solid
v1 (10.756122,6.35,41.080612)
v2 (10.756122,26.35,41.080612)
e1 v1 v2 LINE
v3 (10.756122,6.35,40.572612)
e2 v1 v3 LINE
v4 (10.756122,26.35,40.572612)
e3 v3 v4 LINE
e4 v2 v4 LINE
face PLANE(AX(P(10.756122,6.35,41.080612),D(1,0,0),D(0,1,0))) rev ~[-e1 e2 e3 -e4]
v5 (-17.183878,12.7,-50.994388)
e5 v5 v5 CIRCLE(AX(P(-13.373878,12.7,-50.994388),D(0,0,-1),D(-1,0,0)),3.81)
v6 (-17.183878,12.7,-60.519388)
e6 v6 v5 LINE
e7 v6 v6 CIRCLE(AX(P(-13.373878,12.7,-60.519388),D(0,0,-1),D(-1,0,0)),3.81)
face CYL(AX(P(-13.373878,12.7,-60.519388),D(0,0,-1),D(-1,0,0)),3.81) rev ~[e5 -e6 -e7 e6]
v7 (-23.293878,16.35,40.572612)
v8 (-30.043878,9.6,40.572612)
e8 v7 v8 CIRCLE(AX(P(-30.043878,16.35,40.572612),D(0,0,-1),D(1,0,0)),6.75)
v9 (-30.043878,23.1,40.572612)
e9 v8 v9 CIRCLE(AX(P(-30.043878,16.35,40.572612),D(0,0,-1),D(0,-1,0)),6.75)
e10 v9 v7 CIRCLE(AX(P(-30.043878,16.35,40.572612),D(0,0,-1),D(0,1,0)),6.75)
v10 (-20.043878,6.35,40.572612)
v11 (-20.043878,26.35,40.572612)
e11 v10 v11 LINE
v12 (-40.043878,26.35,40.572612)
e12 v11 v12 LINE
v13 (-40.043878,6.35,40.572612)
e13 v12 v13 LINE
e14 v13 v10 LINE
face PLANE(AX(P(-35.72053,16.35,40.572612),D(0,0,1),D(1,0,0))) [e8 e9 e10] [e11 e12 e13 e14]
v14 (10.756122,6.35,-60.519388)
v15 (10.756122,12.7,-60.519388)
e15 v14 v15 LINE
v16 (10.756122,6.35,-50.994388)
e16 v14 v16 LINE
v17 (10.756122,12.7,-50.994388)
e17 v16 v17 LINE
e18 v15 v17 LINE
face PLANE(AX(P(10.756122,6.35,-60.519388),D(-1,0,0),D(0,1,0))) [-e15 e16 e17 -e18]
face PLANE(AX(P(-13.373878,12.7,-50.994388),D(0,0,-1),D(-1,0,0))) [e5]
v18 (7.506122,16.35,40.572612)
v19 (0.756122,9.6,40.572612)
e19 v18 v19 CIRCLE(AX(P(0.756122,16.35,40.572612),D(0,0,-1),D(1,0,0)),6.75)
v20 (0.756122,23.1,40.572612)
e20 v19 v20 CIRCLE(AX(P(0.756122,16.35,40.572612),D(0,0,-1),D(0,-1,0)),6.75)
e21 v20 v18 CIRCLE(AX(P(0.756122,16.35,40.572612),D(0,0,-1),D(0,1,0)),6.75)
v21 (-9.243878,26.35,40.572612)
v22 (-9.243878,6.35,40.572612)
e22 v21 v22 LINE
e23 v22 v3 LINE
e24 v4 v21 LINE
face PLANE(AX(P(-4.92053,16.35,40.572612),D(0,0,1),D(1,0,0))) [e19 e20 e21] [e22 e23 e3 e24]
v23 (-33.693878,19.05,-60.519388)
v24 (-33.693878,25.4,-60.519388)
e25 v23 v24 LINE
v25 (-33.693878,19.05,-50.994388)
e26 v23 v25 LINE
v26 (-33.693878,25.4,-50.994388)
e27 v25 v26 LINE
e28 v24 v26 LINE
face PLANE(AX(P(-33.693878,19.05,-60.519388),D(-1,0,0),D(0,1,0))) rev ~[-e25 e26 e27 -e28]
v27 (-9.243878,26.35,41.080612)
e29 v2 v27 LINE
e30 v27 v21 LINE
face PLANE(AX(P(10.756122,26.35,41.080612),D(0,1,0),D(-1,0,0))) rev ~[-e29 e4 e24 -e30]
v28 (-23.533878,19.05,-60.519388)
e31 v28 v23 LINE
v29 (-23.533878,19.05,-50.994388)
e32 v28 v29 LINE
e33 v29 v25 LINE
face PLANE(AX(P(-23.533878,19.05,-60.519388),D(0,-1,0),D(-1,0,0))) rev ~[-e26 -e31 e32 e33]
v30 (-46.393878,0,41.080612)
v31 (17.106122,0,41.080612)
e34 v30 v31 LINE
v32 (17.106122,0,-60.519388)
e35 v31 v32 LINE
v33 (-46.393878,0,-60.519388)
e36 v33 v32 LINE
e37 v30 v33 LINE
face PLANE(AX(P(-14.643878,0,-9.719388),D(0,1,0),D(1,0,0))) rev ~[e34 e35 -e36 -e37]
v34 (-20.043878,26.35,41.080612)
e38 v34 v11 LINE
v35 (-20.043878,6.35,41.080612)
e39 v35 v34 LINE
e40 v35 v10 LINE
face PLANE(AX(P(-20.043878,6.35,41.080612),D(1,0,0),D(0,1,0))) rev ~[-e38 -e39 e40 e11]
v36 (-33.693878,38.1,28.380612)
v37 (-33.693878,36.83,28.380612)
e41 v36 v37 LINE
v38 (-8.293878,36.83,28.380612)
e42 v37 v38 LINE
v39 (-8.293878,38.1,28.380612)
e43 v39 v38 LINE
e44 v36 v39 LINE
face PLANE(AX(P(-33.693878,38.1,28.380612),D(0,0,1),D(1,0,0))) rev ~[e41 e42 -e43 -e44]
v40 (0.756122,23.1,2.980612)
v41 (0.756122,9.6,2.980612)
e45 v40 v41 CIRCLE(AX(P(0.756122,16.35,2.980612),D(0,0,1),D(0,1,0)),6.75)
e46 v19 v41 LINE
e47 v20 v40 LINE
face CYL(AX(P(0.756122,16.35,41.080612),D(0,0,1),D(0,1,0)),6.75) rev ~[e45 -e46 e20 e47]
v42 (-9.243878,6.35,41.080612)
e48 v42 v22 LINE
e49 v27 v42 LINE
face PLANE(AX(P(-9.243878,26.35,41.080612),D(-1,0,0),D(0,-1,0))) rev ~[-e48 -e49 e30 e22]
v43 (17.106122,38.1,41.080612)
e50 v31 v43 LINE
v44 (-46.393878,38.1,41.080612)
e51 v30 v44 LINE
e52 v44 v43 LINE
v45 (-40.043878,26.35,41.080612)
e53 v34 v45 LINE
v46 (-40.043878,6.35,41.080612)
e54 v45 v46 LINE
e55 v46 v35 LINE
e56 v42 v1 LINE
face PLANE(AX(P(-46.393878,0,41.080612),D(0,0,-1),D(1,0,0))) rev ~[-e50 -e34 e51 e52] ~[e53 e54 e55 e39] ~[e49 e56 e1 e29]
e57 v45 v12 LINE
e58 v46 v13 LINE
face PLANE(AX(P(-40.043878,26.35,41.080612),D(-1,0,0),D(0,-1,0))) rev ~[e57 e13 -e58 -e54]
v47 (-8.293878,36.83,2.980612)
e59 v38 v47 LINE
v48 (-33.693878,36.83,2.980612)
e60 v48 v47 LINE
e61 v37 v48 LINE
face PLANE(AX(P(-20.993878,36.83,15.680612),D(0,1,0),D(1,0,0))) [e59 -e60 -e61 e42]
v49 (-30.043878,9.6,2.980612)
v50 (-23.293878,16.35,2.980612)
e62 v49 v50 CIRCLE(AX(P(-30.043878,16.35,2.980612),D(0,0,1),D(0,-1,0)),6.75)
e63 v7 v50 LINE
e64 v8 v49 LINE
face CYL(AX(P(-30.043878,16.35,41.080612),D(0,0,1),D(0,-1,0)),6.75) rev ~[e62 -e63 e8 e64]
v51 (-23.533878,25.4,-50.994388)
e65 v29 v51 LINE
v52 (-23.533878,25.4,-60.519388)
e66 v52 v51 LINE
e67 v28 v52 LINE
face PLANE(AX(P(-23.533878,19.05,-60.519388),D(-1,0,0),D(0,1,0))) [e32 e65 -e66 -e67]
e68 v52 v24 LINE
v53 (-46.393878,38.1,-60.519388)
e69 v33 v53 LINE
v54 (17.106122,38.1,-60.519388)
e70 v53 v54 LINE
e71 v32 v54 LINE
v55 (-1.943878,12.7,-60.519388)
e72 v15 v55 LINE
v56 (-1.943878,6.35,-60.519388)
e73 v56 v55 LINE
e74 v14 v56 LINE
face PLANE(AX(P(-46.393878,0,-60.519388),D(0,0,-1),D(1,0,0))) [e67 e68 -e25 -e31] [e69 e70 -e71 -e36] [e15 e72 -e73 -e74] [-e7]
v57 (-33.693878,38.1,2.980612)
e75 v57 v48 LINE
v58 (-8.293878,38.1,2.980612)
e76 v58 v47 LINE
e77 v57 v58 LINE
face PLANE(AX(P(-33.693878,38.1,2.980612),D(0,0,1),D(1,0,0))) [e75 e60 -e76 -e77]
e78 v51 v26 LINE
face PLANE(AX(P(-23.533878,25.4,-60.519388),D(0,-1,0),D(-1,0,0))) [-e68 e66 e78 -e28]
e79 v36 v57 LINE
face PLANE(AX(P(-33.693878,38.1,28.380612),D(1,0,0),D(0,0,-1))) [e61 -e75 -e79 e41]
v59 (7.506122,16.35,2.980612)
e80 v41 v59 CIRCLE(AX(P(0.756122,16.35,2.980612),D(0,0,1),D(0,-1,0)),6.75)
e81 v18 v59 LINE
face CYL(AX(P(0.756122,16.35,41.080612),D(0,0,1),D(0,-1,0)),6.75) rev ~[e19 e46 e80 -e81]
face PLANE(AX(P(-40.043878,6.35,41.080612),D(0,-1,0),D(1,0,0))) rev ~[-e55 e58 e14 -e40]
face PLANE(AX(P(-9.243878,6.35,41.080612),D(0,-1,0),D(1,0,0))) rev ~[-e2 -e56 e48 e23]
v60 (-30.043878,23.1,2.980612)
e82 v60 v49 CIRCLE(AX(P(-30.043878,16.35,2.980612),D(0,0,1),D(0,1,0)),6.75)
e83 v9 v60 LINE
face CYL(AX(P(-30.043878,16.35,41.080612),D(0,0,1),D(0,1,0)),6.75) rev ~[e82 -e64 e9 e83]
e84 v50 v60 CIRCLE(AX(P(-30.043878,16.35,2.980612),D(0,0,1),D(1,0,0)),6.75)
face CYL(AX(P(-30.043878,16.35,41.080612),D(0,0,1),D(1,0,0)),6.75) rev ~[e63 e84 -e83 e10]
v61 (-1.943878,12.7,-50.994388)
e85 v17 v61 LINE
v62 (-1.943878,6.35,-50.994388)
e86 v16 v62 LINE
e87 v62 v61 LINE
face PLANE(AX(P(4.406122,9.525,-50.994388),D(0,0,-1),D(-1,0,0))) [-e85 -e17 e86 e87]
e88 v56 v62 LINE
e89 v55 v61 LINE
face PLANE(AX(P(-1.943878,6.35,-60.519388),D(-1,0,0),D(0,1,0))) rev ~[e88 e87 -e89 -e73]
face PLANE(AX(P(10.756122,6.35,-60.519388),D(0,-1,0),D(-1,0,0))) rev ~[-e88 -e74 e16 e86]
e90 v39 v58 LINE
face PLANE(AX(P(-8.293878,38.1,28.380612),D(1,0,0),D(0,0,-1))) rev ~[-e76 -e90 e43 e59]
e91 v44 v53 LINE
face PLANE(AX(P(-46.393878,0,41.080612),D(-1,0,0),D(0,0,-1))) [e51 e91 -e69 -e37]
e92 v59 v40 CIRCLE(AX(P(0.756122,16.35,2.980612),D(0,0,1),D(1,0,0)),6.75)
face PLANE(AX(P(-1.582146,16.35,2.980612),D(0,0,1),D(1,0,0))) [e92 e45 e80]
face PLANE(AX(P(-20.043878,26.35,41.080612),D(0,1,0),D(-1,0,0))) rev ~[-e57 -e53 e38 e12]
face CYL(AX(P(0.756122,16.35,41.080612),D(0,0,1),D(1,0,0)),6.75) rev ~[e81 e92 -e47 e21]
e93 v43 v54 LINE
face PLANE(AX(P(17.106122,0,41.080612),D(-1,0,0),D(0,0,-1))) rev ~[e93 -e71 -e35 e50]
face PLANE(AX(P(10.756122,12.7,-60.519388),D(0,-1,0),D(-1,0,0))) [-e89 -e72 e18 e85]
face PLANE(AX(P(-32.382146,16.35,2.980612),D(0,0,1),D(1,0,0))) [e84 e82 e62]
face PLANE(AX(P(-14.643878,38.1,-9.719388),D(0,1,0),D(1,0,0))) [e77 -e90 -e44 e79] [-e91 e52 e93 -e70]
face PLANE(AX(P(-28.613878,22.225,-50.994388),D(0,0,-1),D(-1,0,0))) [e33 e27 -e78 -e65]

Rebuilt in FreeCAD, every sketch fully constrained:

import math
import FreeCAD as App
import Part
import Sketcher
Q = App.Units.Quantity

doc = App.newDocument("Part")
body = doc.addObject("PartDesign::Body", "Body")

# Sketch on XZ plane
sketch1 = doc.addObject("Sketcher::SketchObject", "Sketch")
body.addObject(sketch1)
sketch1.AttachmentSupport = (doc.XZ_Plane, [""])
sketch1.MapMode = "FlatFace"
sketch1.addGeometry([
    Part.LineSegment(App.Vector(-46, -61, 0), App.Vector(-46, 41, 0)),
    Part.LineSegment(App.Vector(-46, 41, 0), App.Vector(17, 41, 0)),
    Part.LineSegment(App.Vector(17, 41, 0), App.Vector(17, -61, 0)),
    Part.LineSegment(App.Vector(17, -61, 0), App.Vector(-46, -61, 0)),
], False)
sketch1.addConstraint([
    Sketcher.Constraint("Coincident", 0, 2, 1, 1),
    Sketcher.Constraint("Coincident", 1, 2, 2, 1),
    Sketcher.Constraint("Coincident", 2, 2, 3, 1),
    Sketcher.Constraint("Coincident", 3, 2, 0, 1),
    Sketcher.Constraint("Vertical", 0),
    Sketcher.Constraint("Horizontal", 1),
    Sketcher.Constraint("Vertical", 2),
    Sketcher.Constraint("Horizontal", 3),
    Sketcher.Constraint("DistanceY", 0, 1, 0, 2, Q("4 in")),
    Sketcher.Constraint("DistanceX", 1, 1, 1, 2, Q("2.5 in")),
    Sketcher.Constraint("DistanceX", 0, 2, -1, 1, Q("46.393878 mm")),
    Sketcher.Constraint("DistanceY", -1, 1, 0, 2, Q("41.080612 mm")),
])
pad1 = doc.addObject("PartDesign::Pad", "Pad")
body.addObject(pad1)
pad1.Profile = sketch1
pad1.Length = Q("1.5 in")
pad1.Reversed = True

# Sketch on XY plane
sketch2 = doc.addObject("Sketcher::SketchObject", "Sketch001")
body.addObject(sketch2)
sketch2.AttachmentSupport = (doc.XY_Plane, [""])
sketch2.MapMode = "FlatFace"
sketch2.AttachmentOffset = App.Placement(App.Vector(0, 0, 41.080612), App.Rotation())
sketch2.addGeometry([
    Part.ArcOfCircle(Part.Circle(App.Vector(-30, 16, 0), App.Vector(0, 0, 1), 7), math.radians(90), math.radians(270)),  # 0
    Part.ArcOfCircle(Part.Circle(App.Vector(-30, 16, 0), App.Vector(0, 0, 1), 7), math.radians(-90), math.radians(0)),  # 1
    Part.ArcOfCircle(Part.Circle(App.Vector(-30, 16, 0), App.Vector(0, 0, 1), 7), math.radians(0), math.radians(90)),  # 2
    Part.ArcOfCircle(Part.Circle(App.Vector(1, 16, 0), App.Vector(0, 0, 1), 7), math.radians(90), math.radians(270)),  # 3
    Part.ArcOfCircle(Part.Circle(App.Vector(1, 16, 0), App.Vector(0, 0, 1), 7), math.radians(-90), math.radians(0)),  # 4
    Part.ArcOfCircle(Part.Circle(App.Vector(1, 16, 0), App.Vector(0, 0, 1), 7), math.radians(0), math.radians(90)),  # 5
], False)
sketch2.addConstraint([
    Sketcher.Constraint("Tangent", 0, 2, 1, 1),
    Sketcher.Constraint("Tangent", 1, 2, 2, 1),
    Sketcher.Constraint("Tangent", 2, 2, 0, 1),
    Sketcher.Constraint("Tangent", 3, 2, 4, 1),
    Sketcher.Constraint("Tangent", 4, 2, 5, 1),
    Sketcher.Constraint("Tangent", 5, 2, 3, 1),
    Sketcher.Constraint("Equal", 2, 3),
    Sketcher.Constraint("Horizontal", 2, 3, 3, 3),
    Sketcher.Constraint("Horizontal", 5, 3, 1, 2),
    Sketcher.Constraint("Horizontal", 1, 2, 4, 2),
    Sketcher.Constraint("Vertical", 2, 3, 0, 2),
    Sketcher.Constraint("Vertical", 0, 2, 2, 2),
    Sketcher.Constraint("Vertical", 5, 3, 3, 2),
    Sketcher.Constraint("Vertical", 3, 2, 5, 2),
    Sketcher.Constraint("Radius", 0, Q("6.75 mm")),
    Sketcher.Constraint("DistanceY", -1, 1, 0, 3, Q("16.35 mm")),
    Sketcher.Constraint("DistanceX", 0, 3, 3, 3, Q("30.8 mm")),
    Sketcher.Constraint("DistanceX", 0, 3, -1, 1, Q("30.043878 mm")),
])
pocket1 = doc.addObject("PartDesign::Pocket", "Pocket")
body.addObject(pocket1)
pocket1.Profile = sketch2
pocket1.Length = Q("1.5 in")

# Sketch on XY plane
sketch3 = doc.addObject("Sketcher::SketchObject", "Sketch002")
body.addObject(sketch3)
sketch3.AttachmentSupport = (doc.XY_Plane, [""])
sketch3.MapMode = "FlatFace"
sketch3.AttachmentOffset = App.Placement(App.Vector(0, 0, 41.080612), App.Rotation())
sketch3.addGeometry([
    Part.LineSegment(App.Vector(-40, 26, 0), App.Vector(-40, 6, 0)),  # 0
    Part.LineSegment(App.Vector(-40, 6, 0), App.Vector(-20, 6, 0)),  # 1
    Part.LineSegment(App.Vector(-20, 6, 0), App.Vector(-20, 26, 0)),  # 2
    Part.LineSegment(App.Vector(-20, 26, 0), App.Vector(-40, 26, 0)),  # 3
    Part.ArcOfCircle(Part.Circle(App.Vector(-30, 16, 0), App.Vector(0, 0, 1), 7), math.radians(90), math.radians(270)),  # 4
    Part.ArcOfCircle(Part.Circle(App.Vector(-30, 16, 0), App.Vector(0, 0, 1), 7), math.radians(0), math.radians(90)),  # 5
    Part.ArcOfCircle(Part.Circle(App.Vector(-30, 16, 0), App.Vector(0, 0, 1), 7), math.radians(-90), math.radians(0)),  # 6
    Part.LineSegment(App.Vector(-9, 26, 0), App.Vector(-9, 6, 0)),  # 7
    Part.LineSegment(App.Vector(-9, 6, 0), App.Vector(11, 6, 0)),  # 8
    Part.LineSegment(App.Vector(11, 6, 0), App.Vector(11, 26, 0)),  # 9
    Part.LineSegment(App.Vector(11, 26, 0), App.Vector(-9, 26, 0)),  # 10
    Part.ArcOfCircle(Part.Circle(App.Vector(1, 16, 0), App.Vector(0, 0, 1), 7), math.radians(90), math.radians(270)),  # 11
    Part.ArcOfCircle(Part.Circle(App.Vector(1, 16, 0), App.Vector(0, 0, 1), 7), math.radians(0), math.radians(90)),  # 12
    Part.ArcOfCircle(Part.Circle(App.Vector(1, 16, 0), App.Vector(0, 0, 1), 7), math.radians(-90), math.radians(0)),  # 13
], False)
sketch3.addConstraint([
    Sketcher.Constraint("Coincident", 0, 2, 1, 1),
    Sketcher.Constraint("Coincident", 1, 2, 2, 1),
    Sketcher.Constraint("Coincident", 2, 2, 3, 1),
    Sketcher.Constraint("Coincident", 3, 2, 0, 1),
    Sketcher.Constraint("Tangent", 4, 1, 5, 2),
    Sketcher.Constraint("Tangent", 5, 1, 6, 2),
    Sketcher.Constraint("Tangent", 6, 1, 4, 2),
    Sketcher.Constraint("Coincident", 7, 2, 8, 1),
    Sketcher.Constraint("Coincident", 8, 2, 9, 1),
    Sketcher.Constraint("Coincident", 9, 2, 10, 1),
    Sketcher.Constraint("Coincident", 10, 2, 7, 1),
    Sketcher.Constraint("Tangent", 11, 1, 12, 2),
    Sketcher.Constraint("Tangent", 12, 1, 13, 2),
    Sketcher.Constraint("Tangent", 13, 1, 11, 2),
    Sketcher.Constraint("Vertical", 0),
    Sketcher.Constraint("Horizontal", 1),
    Sketcher.Constraint("Vertical", 2),
    Sketcher.Constraint("Horizontal", 3),
    Sketcher.Constraint("Vertical", 7),
    Sketcher.Constraint("Horizontal", 8),
    Sketcher.Constraint("Vertical", 9),
    Sketcher.Constraint("Horizontal", 10),
    Sketcher.Constraint("Equal", 6, 11),
    Sketcher.Constraint("Horizontal", 6, 3, 11, 3),
    Sketcher.Constraint("Horizontal", 13, 3, 5, 1),
    Sketcher.Constraint("Horizontal", 1, 2, 7, 2),
    Sketcher.Constraint("Horizontal", 3, 2, 9, 2),
    Sketcher.Constraint("Horizontal", 5, 1, 12, 1),
    Sketcher.Constraint("Vertical", 6, 3, 4, 1),
    Sketcher.Constraint("Vertical", 4, 1, 6, 1),
    Sketcher.Constraint("Vertical", 13, 3, 11, 1),
    Sketcher.Constraint("Vertical", 11, 1, 13, 1),
    Sketcher.Constraint("Equal", 3, 8),
    Sketcher.Constraint("Equal", 10, 0),
    Sketcher.Constraint("DistanceY", -1, 1, 0, 2, Q("0.25 in")),
    Sketcher.Constraint("Radius", 4, Q("6.75 mm")),
    Sketcher.Constraint("DistanceX", 1, 1, 1, 2, Q("20 mm")),
    Sketcher.Constraint("DistanceY", -1, 1, 4, 3, Q("16.35 mm")),
    Sketcher.Constraint("DistanceX", 4, 3, 11, 3, Q("30.8 mm")),
    Sketcher.Constraint("DistanceX", 0, 2, 4, 3, Q("10 mm")),
    Sketcher.Constraint("DistanceX", 1, 2, 7, 2, Q("10.8 mm")),
    Sketcher.Constraint("DistanceX", 4, 3, -1, 1, Q("30.043878 mm")),
])
pocket2 = doc.addObject("PartDesign::Pocket", "Pocket001")
body.addObject(pocket2)
pocket2.Profile = sketch3
pocket2.Length = Q("0.02 in")

# Sketch on XY plane
sketch4 = doc.addObject("Sketcher::SketchObject", "Sketch003")
body.addObject(sketch4)
sketch4.AttachmentSupport = (doc.XY_Plane, [""])
sketch4.MapMode = "FlatFace"
sketch4.AttachmentOffset = App.Placement(App.Vector(0, 0, -60.519388), App.Rotation())
sketch4.addGeometry([
    Part.Circle(App.Vector(-13.4, 12.7, 0), App.Vector(0, 0, 1), 3.8),  # 0
    Part.LineSegment(App.Vector(-23.5, 25.4, 0), App.Vector(-23.5, 19.1, 0)),  # 1
    Part.LineSegment(App.Vector(-23.5, 19.1, 0), App.Vector(-33.7, 19.1, 0)),  # 2
    Part.LineSegment(App.Vector(-33.7, 19.1, 0), App.Vector(-33.7, 25.4, 0)),  # 3
    Part.LineSegment(App.Vector(-33.7, 25.4, 0), App.Vector(-23.5, 25.4, 0)),  # 4
    Part.LineSegment(App.Vector(10.8, 12.7, 0), App.Vector(10.8, 6.3, 0)),  # 5
    Part.LineSegment(App.Vector(10.8, 6.3, 0), App.Vector(-1.9, 6.3, 0)),  # 6
    Part.LineSegment(App.Vector(-1.9, 6.3, 0), App.Vector(-1.9, 12.7, 0)),  # 7
    Part.LineSegment(App.Vector(-1.9, 12.7, 0), App.Vector(10.8, 12.7, 0)),  # 8
], False)
sketch4.addConstraint([
    Sketcher.Constraint("Coincident", 1, 2, 2, 1),
    Sketcher.Constraint("Coincident", 2, 2, 3, 1),
    Sketcher.Constraint("Coincident", 3, 2, 4, 1),
    Sketcher.Constraint("Coincident", 4, 2, 1, 1),
    Sketcher.Constraint("Coincident", 5, 2, 6, 1),
    Sketcher.Constraint("Coincident", 6, 2, 7, 1),
    Sketcher.Constraint("Coincident", 7, 2, 8, 1),
    Sketcher.Constraint("Coincident", 8, 2, 5, 1),
    Sketcher.Constraint("Vertical", 1),
    Sketcher.Constraint("Horizontal", 2),
    Sketcher.Constraint("Vertical", 3),
    Sketcher.Constraint("Horizontal", 4),
    Sketcher.Constraint("Vertical", 5),
    Sketcher.Constraint("Horizontal", 6),
    Sketcher.Constraint("Vertical", 7),
    Sketcher.Constraint("Horizontal", 8),
    Sketcher.Constraint("Horizontal", 0, 3, 7, 2),
    Sketcher.Constraint("Equal", 3, 5),
    Sketcher.Constraint("Diameter", 0, Q("0.3 in")),
    Sketcher.Constraint("DistanceX", 2, 2, 2, 1, Q("0.4 in")),
    Sketcher.Constraint("DistanceX", 6, 2, 6, 1, Q("0.5 in")),
    Sketcher.Constraint("DistanceY", -1, 1, 3, 2, Q("1 in")),
    Sketcher.Constraint("DistanceY", 1, 2, 1, 1, Q("0.25 in")),
    Sketcher.Constraint("DistanceY", -1, 1, 0, 3, Q("0.5 in")),
    Sketcher.Constraint("DistanceX", 1, 2, 0, 3, Q("0.4 in")),
    Sketcher.Constraint("DistanceX", 0, 3, 5, 2, Q("0.95 in")),
    Sketcher.Constraint("DistanceX", 0, 3, -1, 1, Q("13.373878 mm")),
])
pocket3 = doc.addObject("PartDesign::Pocket", "Pocket002")
body.addObject(pocket3)
pocket3.Profile = sketch4
pocket3.Length = Q("0.375 in")
pocket3.Reversed = True

# Sketch on XZ plane
sketch5 = doc.addObject("Sketcher::SketchObject", "Sketch004")
body.addObject(sketch5)
sketch5.AttachmentSupport = (doc.XZ_Plane, [""])
sketch5.MapMode = "FlatFace"
sketch5.AttachmentOffset = App.Placement(App.Vector(0, 0, -1.5 * 25.4), App.Rotation())
sketch5.addGeometry([
    Part.LineSegment(App.Vector(-34, 3, 0), App.Vector(-34, 28, 0)),
    Part.LineSegment(App.Vector(-34, 28, 0), App.Vector(-8, 28, 0)),
    Part.LineSegment(App.Vector(-8, 28, 0), App.Vector(-8, 3, 0)),
    Part.LineSegment(App.Vector(-8, 3, 0), App.Vector(-34, 3, 0)),
], False)
sketch5.addConstraint([
    Sketcher.Constraint("Coincident", 0, 2, 1, 1),
    Sketcher.Constraint("Coincident", 1, 2, 2, 1),
    Sketcher.Constraint("Coincident", 2, 2, 3, 1),
    Sketcher.Constraint("Coincident", 3, 2, 0, 1),
    Sketcher.Constraint("Vertical", 0),
    Sketcher.Constraint("Horizontal", 1),
    Sketcher.Constraint("Vertical", 2),
    Sketcher.Constraint("Horizontal", 3),
    Sketcher.Constraint("Equal", 3, 0),
    Sketcher.Constraint("DistanceX", 1, 1, 1, 2, Q("1 in")),
    Sketcher.Constraint("DistanceX", 0, 2, -1, 1, Q("33.693878 mm")),
    Sketcher.Constraint("DistanceY", -1, 1, 0, 2, Q("28.380612 mm")),
])
pocket4 = doc.addObject("PartDesign::Pocket", "Pocket003")
body.addObject(pocket4)
pocket4.Profile = sketch5
pocket4.Length = Q("0.05 in")
pocket4.Reversed = True

doc.recompute()
